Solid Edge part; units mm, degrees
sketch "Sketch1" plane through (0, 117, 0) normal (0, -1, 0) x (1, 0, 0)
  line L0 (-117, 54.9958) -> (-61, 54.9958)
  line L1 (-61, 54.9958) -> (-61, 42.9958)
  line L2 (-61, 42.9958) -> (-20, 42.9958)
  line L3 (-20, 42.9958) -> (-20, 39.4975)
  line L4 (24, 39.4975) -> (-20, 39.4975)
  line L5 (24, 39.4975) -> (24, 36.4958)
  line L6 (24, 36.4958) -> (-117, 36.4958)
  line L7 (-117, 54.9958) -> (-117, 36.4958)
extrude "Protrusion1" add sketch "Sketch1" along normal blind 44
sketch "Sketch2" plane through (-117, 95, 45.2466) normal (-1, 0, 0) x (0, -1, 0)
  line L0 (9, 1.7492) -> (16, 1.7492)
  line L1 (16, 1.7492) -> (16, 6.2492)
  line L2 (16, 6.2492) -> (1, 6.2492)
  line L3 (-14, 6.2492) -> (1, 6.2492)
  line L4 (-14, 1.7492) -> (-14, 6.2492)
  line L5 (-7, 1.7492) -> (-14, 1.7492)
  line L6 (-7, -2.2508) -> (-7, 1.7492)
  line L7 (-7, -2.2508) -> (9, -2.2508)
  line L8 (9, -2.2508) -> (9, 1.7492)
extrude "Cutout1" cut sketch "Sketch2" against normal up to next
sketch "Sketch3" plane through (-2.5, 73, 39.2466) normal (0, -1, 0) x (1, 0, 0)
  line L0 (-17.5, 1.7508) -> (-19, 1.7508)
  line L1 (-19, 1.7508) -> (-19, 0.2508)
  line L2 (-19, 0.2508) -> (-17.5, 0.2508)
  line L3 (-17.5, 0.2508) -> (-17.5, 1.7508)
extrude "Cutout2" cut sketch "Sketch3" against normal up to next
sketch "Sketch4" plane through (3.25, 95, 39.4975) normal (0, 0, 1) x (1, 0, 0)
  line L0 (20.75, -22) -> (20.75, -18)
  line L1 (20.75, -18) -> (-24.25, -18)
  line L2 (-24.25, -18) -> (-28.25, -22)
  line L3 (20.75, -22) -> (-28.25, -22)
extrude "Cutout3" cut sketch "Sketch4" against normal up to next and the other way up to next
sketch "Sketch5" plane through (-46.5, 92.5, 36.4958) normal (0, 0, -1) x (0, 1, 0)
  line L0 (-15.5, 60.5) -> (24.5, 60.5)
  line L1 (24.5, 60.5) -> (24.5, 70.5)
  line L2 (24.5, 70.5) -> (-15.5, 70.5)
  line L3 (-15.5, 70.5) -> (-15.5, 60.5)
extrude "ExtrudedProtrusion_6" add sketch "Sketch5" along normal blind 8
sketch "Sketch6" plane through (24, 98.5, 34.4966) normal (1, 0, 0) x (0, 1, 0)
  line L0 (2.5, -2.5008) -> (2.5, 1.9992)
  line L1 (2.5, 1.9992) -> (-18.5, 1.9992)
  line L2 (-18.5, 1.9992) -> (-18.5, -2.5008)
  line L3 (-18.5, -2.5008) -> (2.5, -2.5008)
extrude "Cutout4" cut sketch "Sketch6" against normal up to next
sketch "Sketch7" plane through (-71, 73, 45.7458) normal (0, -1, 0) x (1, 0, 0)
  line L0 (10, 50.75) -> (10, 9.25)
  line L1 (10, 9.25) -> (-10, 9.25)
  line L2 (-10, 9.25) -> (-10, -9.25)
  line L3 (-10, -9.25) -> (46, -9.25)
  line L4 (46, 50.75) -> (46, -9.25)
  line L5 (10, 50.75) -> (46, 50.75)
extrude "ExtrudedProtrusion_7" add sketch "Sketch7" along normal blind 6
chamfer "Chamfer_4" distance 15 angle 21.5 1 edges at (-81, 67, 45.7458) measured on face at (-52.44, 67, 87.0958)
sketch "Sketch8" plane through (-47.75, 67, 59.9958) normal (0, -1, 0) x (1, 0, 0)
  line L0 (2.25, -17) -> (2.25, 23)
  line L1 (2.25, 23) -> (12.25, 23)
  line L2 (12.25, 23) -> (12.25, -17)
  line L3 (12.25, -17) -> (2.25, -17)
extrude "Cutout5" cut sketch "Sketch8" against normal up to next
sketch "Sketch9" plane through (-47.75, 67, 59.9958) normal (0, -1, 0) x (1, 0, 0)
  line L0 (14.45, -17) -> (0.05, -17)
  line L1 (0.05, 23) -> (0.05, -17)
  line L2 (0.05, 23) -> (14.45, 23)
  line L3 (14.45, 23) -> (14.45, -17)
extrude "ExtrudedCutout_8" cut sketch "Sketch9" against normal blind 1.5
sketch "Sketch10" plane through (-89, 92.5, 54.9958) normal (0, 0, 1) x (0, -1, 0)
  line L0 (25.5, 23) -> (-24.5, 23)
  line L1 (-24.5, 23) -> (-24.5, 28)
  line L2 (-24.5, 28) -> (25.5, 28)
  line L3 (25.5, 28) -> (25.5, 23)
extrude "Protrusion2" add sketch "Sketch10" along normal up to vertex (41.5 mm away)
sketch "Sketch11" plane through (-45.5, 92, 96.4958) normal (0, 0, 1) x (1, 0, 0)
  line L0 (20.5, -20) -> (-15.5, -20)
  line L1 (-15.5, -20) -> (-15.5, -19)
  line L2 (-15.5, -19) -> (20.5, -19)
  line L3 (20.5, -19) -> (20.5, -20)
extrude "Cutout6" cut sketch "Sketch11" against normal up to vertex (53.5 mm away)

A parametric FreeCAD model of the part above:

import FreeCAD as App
import Part
import Sketcher

V = App.Vector
Q = App.Units.Quantity


def edges_at(feature, points):
    """Names of the edges that pass closest to the given points."""
    edges = feature.Shape.Edges
    near = lambda p: min(range(len(edges)), key=lambda i: edges[i].distToShape(Part.Vertex(*p))[0])
    return sorted({f"Edge{near(p) + 1}" for p in points})


def add_polygon(sketch, points):
    """Adds a closed chain of lines whose ends are joined by coincident constraints."""
    first, n = sketch.GeometryCount, len(points)
    for a, b in zip(points, points[1:] + points[:1]):
        sketch.addGeometry(Part.LineSegment(App.Vector(*a, 0), App.Vector(*b, 0)), False)
    for i in range(n):
        sketch.addConstraint(Sketcher.Constraint("Coincident", first + i, 2, first + (i + 1) % n, 1))

doc = App.newDocument("Part")
params = doc.addObject("Spreadsheet::Sheet", "Params")
for row, (alias, value) in enumerate([
    ("sketch1_width", "56 mm"),
    ("sketch1_width2", "141 mm"),
    ("sketch1_width3", "44 mm"),
    ("sketch1_height", "12 mm"),
    ("sketch1_height2", "18.5 mm"),
    ("pad1_length", "44 mm"),
    ("sketch2_width", "7 mm"),
    ("sketch2_width2", "30 mm"),
    ("sketch2_height", "4 mm"),
    ("sketch2_height2", "4.5 mm"),
    ("sketch3_width", "1.5 mm"),
    ("sketch4_width", "49 mm"),
    ("sketch4_width2", "45 mm"),
    ("sketch4_height", "4 mm"),
    ("sketch5_width", "10 mm"),
    ("sketch5_height", "40 mm"),
    ("pad2_length", "8 mm"),
    ("sketch6_width", "21 mm"),
    ("sketch6_height", "4.5 mm"),
    ("sketch7_width", "36 mm"),
    ("sketch7_width2", "20 mm"),
    ("sketch7_height", "60 mm"),
    ("sketch7_height2", "41.5 mm"),
    ("pad3_length", "6 mm"),
    ("chamfer_size", "15 mm"),
    ("sketch8_width", "10 mm"),
    ("sketch8_height", "40 mm"),
    ("sketch9_height", "40 mm"),
    ("sketch9_width", "14.4 mm"),
    ("pocket6_length", "1.5 mm"),
    ("sketch10_width", "5 mm"),
    ("sketch10_height", "50 mm"),
    ("pad4_length", "41.5 mm"),
    ("sketch11_width", "36 mm"),
    ("sketch11_height", "1 mm"),
    ("pocket7_length", "53.5 mm"),
], start=1):
    params.set(f"A{row}", alias)
    params.set(f"B{row}", "=" + value)
    params.setAlias(f"B{row}", alias)

body = doc.addObject("PartDesign::Body", "Body")

# Sketch on XZ plane
sketch1 = body.newObject("Sketcher::SketchObject", "Sketch")
sketch1.AttachmentSupport = (doc.getObject("XZ_Plane"), [""])
sketch1.MapMode = "FlatFace"
sketch1.AttachmentOffset = App.Placement(V(0, 0, -117), App.Rotation())
add_polygon(sketch1, [(-61, 54.9958), (-117, 54.9958), (-117, 36.4958), (24, 36.4958), (24, 39.4975), (-20, 39.4975), (-20, 42.9958), (-61, 42.9958)])  # lines 0-7
sketch1.addConstraint(Sketcher.Constraint("Horizontal", 0))
sketch1.addConstraint(Sketcher.Constraint("Vertical", 1))
sketch1.addConstraint(Sketcher.Constraint("Horizontal", 2))
sketch1.addConstraint(Sketcher.Constraint("Vertical", 3))
sketch1.addConstraint(Sketcher.Constraint("Horizontal", 4))
sketch1.addConstraint(Sketcher.Constraint("Vertical", 5))
sketch1.addConstraint(Sketcher.Constraint("Horizontal", 6))
sketch1.addConstraint(Sketcher.Constraint("Vertical", 7))
sketch1.addConstraint(Sketcher.Constraint("DistanceX", 0, 2, 0, 1, Q("56 mm")))
sketch1.addConstraint(Sketcher.Constraint("DistanceX", 2, 1, 2, 2, Q("141 mm")))
sketch1.addConstraint(Sketcher.Constraint("DistanceX", 4, 2, 4, 1, Q("44 mm")))
sketch1.addConstraint(Sketcher.Constraint("DistanceY", 7, 1, 7, 2, Q("12 mm")))
sketch1.addConstraint(Sketcher.Constraint("DistanceY", 1, 2, 1, 1, Q("18.5 mm")))
sketch1.addConstraint(Sketcher.Constraint("DistanceX", 0, 2, -1, 1, Q("117 mm")))
sketch1.addConstraint(Sketcher.Constraint("DistanceY", 3, 1, 3, 2, Q("3.0017 mm")))
sketch1.addConstraint(Sketcher.Constraint("DistanceY", -1, 1, 0, 2, Q("54.9958 mm")))
sketch1.setExpression("Constraints[16]", "Params.sketch1_width")
sketch1.setExpression("Constraints[17]", "Params.sketch1_width2")
sketch1.setExpression("Constraints[18]", "Params.sketch1_width3")
sketch1.setExpression("Constraints[19]", "Params.sketch1_height")
sketch1.setExpression("Constraints[20]", "Params.sketch1_height2")
pad1 = body.newObject("PartDesign::Pad", "Pad")
pad1.Profile = sketch1
pad1.setExpression("Length", "Params.pad1_length")

# Sketch on YZ plane
sketch2 = body.newObject("Sketcher::SketchObject", "Sketch001")
sketch2.AttachmentSupport = (doc.getObject("YZ_Plane"), [""])
sketch2.MapMode = "FlatFace"
sketch2.AttachmentOffset = App.Placement(V(0, 0, -117), App.Rotation())
add_polygon(sketch2, [(86, 42.9958), (86, 46.9958), (79, 46.9958), (79, 51.4958), (109, 51.4958), (109, 46.9958), (102, 46.9958), (102, 42.9958)])  # lines 0-7
sketch2.addConstraint(Sketcher.Constraint("Vertical", 0))
sketch2.addConstraint(Sketcher.Constraint("Horizontal", 1))
sketch2.addConstraint(Sketcher.Constraint("Vertical", 2))
sketch2.addConstraint(Sketcher.Constraint("Horizontal", 3))
sketch2.addConstraint(Sketcher.Constraint("Vertical", 4))
sketch2.addConstraint(Sketcher.Constraint("Horizontal", 5))
sketch2.addConstraint(Sketcher.Constraint("Vertical", 6))
sketch2.addConstraint(Sketcher.Constraint("Horizontal", 7))
sketch2.addConstraint(Sketcher.Constraint("Horizontal", 1, 2, 4, 2))
sketch2.addConstraint(Sketcher.Constraint("Equal", 1, 5))
sketch2.addConstraint(Sketcher.Constraint("DistanceX", 1, 2, 1, 1, Q("7 mm")))
sketch2.addConstraint(Sketcher.Constraint("DistanceX", 3, 1, 3, 2, Q("30 mm")))
sketch2.addConstraint(Sketcher.Constraint("DistanceY", 0, 1, 0, 2, Q("4 mm")))
sketch2.addConstraint(Sketcher.Constraint("DistanceY", 2, 1, 2, 2, Q("4.5 mm")))
sketch2.addConstraint(Sketcher.Constraint("DistanceX", -1, 1, 0, 2, Q("86 mm")))
sketch2.addConstraint(Sketcher.Constraint("DistanceY", -1, 1, 0, 2, Q("46.9958 mm")))
sketch2.setExpression("Constraints[18]", "Params.sketch2_width")
sketch2.setExpression("Constraints[19]", "Params.sketch2_width2")
sketch2.setExpression("Constraints[20]", "Params.sketch2_height")
sketch2.setExpression("Constraints[21]", "Params.sketch2_height2")
pocket1 = body.newObject("PartDesign::Pocket", "Pocket")
pocket1.Profile = sketch2
pocket1.Type = "UpToFirst"
pocket1.Reversed = True

# Sketch on XZ plane
sketch3 = body.newObject("Sketcher::SketchObject", "Sketch002")
sketch3.AttachmentSupport = (doc.getObject("XZ_Plane"), [""])
sketch3.MapMode = "FlatFace"
sketch3.AttachmentOffset = App.Placement(V(0, 0, -73), App.Rotation())
add_polygon(sketch3, [(-20, 39.4974), (-20, 40.9974), (-21.5, 40.9974), (-21.5, 39.4974)])  # lines 0-3
sketch3.addConstraint(Sketcher.Constraint("Vertical", 0))
sketch3.addConstraint(Sketcher.Constraint("Horizontal", 1))
sketch3.addConstraint(Sketcher.Constraint("Vertical", 2))
sketch3.addConstraint(Sketcher.Constraint("Horizontal", 3))
sketch3.addConstraint(Sketcher.Constraint("Equal", 3, 0))
sketch3.addConstraint(Sketcher.Constraint("DistanceX", 1, 2, 1, 1, Q("1.5 mm")))
sketch3.addConstraint(Sketcher.Constraint("DistanceX", 0, 2, -1, 1, Q("20 mm")))
sketch3.addConstraint(Sketcher.Constraint("DistanceY", -1, 1, 0, 2, Q("40.9974 mm")))
sketch3.setExpression("Constraints[9]", "Params.sketch3_width")
pocket2 = body.newObject("PartDesign::Pocket", "Pocket001")
pocket2.Profile = sketch3
pocket2.Type = "UpToFirst"

# Sketch on XY plane
sketch4 = body.newObject("Sketcher::SketchObject", "Sketch003")
sketch4.AttachmentSupport = (doc.getObject("XY_Plane"), [""])
sketch4.MapMode = "FlatFace"
sketch4.AttachmentOffset = App.Placement(V(0, 0, 39.4975), App.Rotation())
add_polygon(sketch4, [(-25, 73), (24, 73), (24, 77), (-21, 77)])  # lines 0-3
sketch4.addConstraint(Sketcher.Constraint("Horizontal", 0))
sketch4.addConstraint(Sketcher.Constraint("Vertical", 1))
sketch4.addConstraint(Sketcher.Constraint("Horizontal", 2))
sketch4.addConstraint(Sketcher.Constraint("DistanceX", 0, 1, 0, 2, Q("49 mm")))
sketch4.addConstraint(Sketcher.Constraint("DistanceX", 2, 2, 2, 1, Q("45 mm")))
sketch4.addConstraint(Sketcher.Constraint("DistanceY", 1, 1, 1, 2, Q("4 mm")))
sketch4.addConstraint(Sketcher.Constraint("DistanceX", -1, 1, 0, 2, Q("24 mm")))
sketch4.addConstraint(Sketcher.Constraint("DistanceY", -1, 1, 0, 2, Q("73 mm")))
sketch4.setExpression("Constraints[7]", "Params.sketch4_width")
sketch4.setExpression("Constraints[8]", "Params.sketch4_width2")
sketch4.setExpression("Constraints[9]", "Params.sketch4_height")
pocket3 = body.newObject("PartDesign::Pocket", "Pocket002")
pocket3.Profile = sketch4
pocket3.Type = "ThroughAll"
pocket3.Midplane = True

# Sketch on XY plane
sketch5 = body.newObject("Sketcher::SketchObject", "Sketch004")
sketch5.AttachmentSupport = (doc.getObject("XY_Plane"), [""])
sketch5.MapMode = "FlatFace"
sketch5.AttachmentOffset = App.Placement(V(0, 0, 36.4958), App.Rotation())
add_polygon(sketch5, [(24, 77), (14, 77), (14, 117), (24, 117)])  # lines 0-3
sketch5.addConstraint(Sketcher.Constraint("Horizontal", 0))
sketch5.addConstraint(Sketcher.Constraint("Vertical", 1))
sketch5.addConstraint(Sketcher.Constraint("Horizontal", 2))
sketch5.addConstraint(Sketcher.Constraint("Vertical", 3))
sketch5.addConstraint(Sketcher.Constraint("DistanceX", 0, 2, 0, 1, Q("10 mm")))
sketch5.addConstraint(Sketcher.Constraint("DistanceY", 1, 1, 1, 2, Q("40 mm")))
sketch5.addConstraint(Sketcher.Constraint("DistanceX", -1, 1, 0, 2, Q("14 mm")))
sketch5.addConstraint(Sketcher.Constraint("DistanceY", -1, 1, 0, 2, Q("77 mm")))
sketch5.setExpression("Constraints[8]", "Params.sketch5_width")
sketch5.setExpression("Constraints[9]", "Params.sketch5_height")
pad2 = body.newObject("PartDesign::Pad", "Pad001")
pad2.Profile = sketch5
pad2.setExpression("Length", "Params.pad2_length")
pad2.Reversed = True

# Sketch on YZ plane
sketch6 = body.newObject("Sketcher::SketchObject", "Sketch005")
sketch6.AttachmentSupport = (doc.getObject("YZ_Plane"), [""])
sketch6.MapMode = "FlatFace"
sketch6.AttachmentOffset = App.Placement(V(0, 0, 24), App.Rotation())
add_polygon(sketch6, [(80, 31.9958), (101, 31.9958), (101, 36.4958), (80, 36.4958)])  # lines 0-3
sketch6.addConstraint(Sketcher.Constraint("Horizontal", 0))
sketch6.addConstraint(Sketcher.Constraint("Vertical", 1))
sketch6.addConstraint(Sketcher.Constraint("Horizontal", 2))
sketch6.addConstraint(Sketcher.Constraint("Vertical", 3))
sketch6.addConstraint(Sketcher.Constraint("DistanceX", 0, 1, 0, 2, Q("21 mm")))
sketch6.addConstraint(Sketcher.Constraint("DistanceY", 1, 1, 1, 2, Q("4.5 mm")))
sketch6.addConstraint(Sketcher.Constraint("DistanceX", -1, 1, 0, 2, Q("101 mm")))
sketch6.addConstraint(Sketcher.Constraint("DistanceY", -1, 1, 0, 2, Q("31.9958 mm")))
sketch6.setExpression("Constraints[8]", "Params.sketch6_width")
sketch6.setExpression("Constraints[9]", "Params.sketch6_height")
pocket4 = body.newObject("PartDesign::Pocket", "Pocket003")
pocket4.Profile = sketch6
pocket4.Type = "UpToFirst"

# Sketch on XZ plane
sketch7 = body.newObject("Sketcher::SketchObject", "Sketch006")
sketch7.AttachmentSupport = (doc.getObject("XZ_Plane"), [""])
sketch7.MapMode = "FlatFace"
sketch7.AttachmentOffset = App.Placement(V(0, 0, -73), App.Rotation())
add_polygon(sketch7, [(-25, 96.4958), (-61, 96.4958), (-61, 54.9958), (-81, 54.9958), (-81, 36.4958), (-25, 36.4958)])  # lines 0-5
sketch7.addConstraint(Sketcher.Constraint("Horizontal", 0))
sketch7.addConstraint(Sketcher.Constraint("Vertical", 1))
sketch7.addConstraint(Sketcher.Constraint("Horizontal", 2))
sketch7.addConstraint(Sketcher.Constraint("Vertical", 3))
sketch7.addConstraint(Sketcher.Constraint("Horizontal", 4))
sketch7.addConstraint(Sketcher.Constraint("Vertical", 5))
sketch7.addConstraint(Sketcher.Constraint("DistanceX", 0, 2, 0, 1, Q("36 mm")))
sketch7.addConstraint(Sketcher.Constraint("DistanceX", 2, 2, 2, 1, Q("20 mm")))
sketch7.addConstraint(Sketcher.Constraint("DistanceY", 5, 1, 5, 2, Q("60 mm")))
sketch7.addConstraint(Sketcher.Constraint("DistanceY", 1, 2, 1, 1, Q("41.5 mm")))
sketch7.addConstraint(Sketcher.Constraint("DistanceX", 0, 2, -1, 1, Q("61 mm")))
sketch7.addConstraint(Sketcher.Constraint("DistanceY", -1, 1, 0, 2, Q("96.4958 mm")))
sketch7.setExpression("Constraints[12]", "Params.sketch7_width")
sketch7.setExpression("Constraints[13]", "Params.sketch7_width2")
sketch7.setExpression("Constraints[14]", "Params.sketch7_height")
sketch7.setExpression("Constraints[15]", "Params.sketch7_height2")
pad3 = body.newObject("PartDesign::Pad", "Pad002")
pad3.Profile = sketch7
pad3.setExpression("Length", "Params.pad3_length")
doc.recompute()

chamfer = body.newObject("PartDesign::Chamfer", "Chamfer")
chamfer.Base = (pad3, edges_at(pad3, [(-81, 67, 45.746)]))
chamfer.ChamferType = "Distance and Angle"
chamfer.setExpression("Size", "Params.chamfer_size")
chamfer.Angle = 21.5
chamfer.FlipDirection = True

# Sketch on XZ plane
sketch8 = body.newObject("Sketcher::SketchObject", "Sketch007")
sketch8.AttachmentSupport = (doc.getObject("XZ_Plane"), [""])
sketch8.MapMode = "FlatFace"
sketch8.AttachmentOffset = App.Placement(V(0, 0, -67), App.Rotation())
add_polygon(sketch8, [(-45.5, 82.9958), (-45.5, 42.9958), (-35.5, 42.9958), (-35.5, 82.9958)])  # lines 0-3
sketch8.addConstraint(Sketcher.Constraint("Vertical", 0))
sketch8.addConstraint(Sketcher.Constraint("Horizontal", 1))
sketch8.addConstraint(Sketcher.Constraint("Vertical", 2))
sketch8.addConstraint(Sketcher.Constraint("Horizontal", 3))
sketch8.addConstraint(Sketcher.Constraint("DistanceX", 1, 1, 1, 2, Q("10 mm")))
sketch8.addConstraint(Sketcher.Constraint("DistanceY", 0, 2, 0, 1, Q("40 mm")))
sketch8.addConstraint(Sketcher.Constraint("DistanceX", 0, 2, -1, 1, Q("45.5 mm")))
sketch8.addConstraint(Sketcher.Constraint("DistanceY", -1, 1, 0, 2, Q("42.9958 mm")))
sketch8.setExpression("Constraints[8]", "Params.sketch8_width")
sketch8.setExpression("Constraints[9]", "Params.sketch8_height")
pocket5 = body.newObject("PartDesign::Pocket", "Pocket004")
pocket5.Profile = sketch8
pocket5.Type = "UpToFirst"

# Sketch on XZ plane
sketch9 = body.newObject("Sketcher::SketchObject", "Sketch008")
sketch9.AttachmentSupport = (doc.getObject("XZ_Plane"), [""])
sketch9.MapMode = "FlatFace"
sketch9.AttachmentOffset = App.Placement(V(0, 0, -67), App.Rotation())
add_polygon(sketch9, [(-47.7, 42.9958), (-33.3, 42.9958), (-33.3, 82.9958), (-47.7, 82.9958)])  # lines 0-3
sketch9.addConstraint(Sketcher.Constraint("Horizontal", 0))
sketch9.addConstraint(Sketcher.Constraint("Vertical", 1))
sketch9.addConstraint(Sketcher.Constraint("Horizontal", 2))
sketch9.addConstraint(Sketcher.Constraint("Vertical", 3))
sketch9.addConstraint(Sketcher.Constraint("DistanceY", 1, 1, 1, 2, Q("40 mm")))
sketch9.addConstraint(Sketcher.Constraint("DistanceX", 0, 1, 0, 2, Q("14.4 mm")))
sketch9.addConstraint(Sketcher.Constraint("DistanceX", 0, 2, -1, 1, Q("33.3 mm")))
sketch9.addConstraint(Sketcher.Constraint("DistanceY", -1, 1, 0, 2, Q("42.9958 mm")))
sketch9.setExpression("Constraints[8]", "Params.sketch9_height")
sketch9.setExpression("Constraints[9]", "Params.sketch9_width")
pocket6 = body.newObject("PartDesign::Pocket", "Pocket005")
pocket6.Profile = sketch9
pocket6.setExpression("Length", "Params.pocket6_length")

# Sketch on XY plane
sketch10 = body.newObject("Sketcher::SketchObject", "Sketch009")
sketch10.AttachmentSupport = (doc.getObject("XY_Plane"), [""])
sketch10.MapMode = "FlatFace"
sketch10.AttachmentOffset = App.Placement(V(0, 0, 54.9958), App.Rotation())
add_polygon(sketch10, [(-66, 117), (-66, 67), (-61, 67), (-61, 117)])  # lines 0-3
sketch10.addConstraint(Sketcher.Constraint("Vertical", 0))
sketch10.addConstraint(Sketcher.Constraint("Horizontal", 1))
sketch10.addConstraint(Sketcher.Constraint("Vertical", 2))
sketch10.addConstraint(Sketcher.Constraint("Horizontal", 3))
sketch10.addConstraint(Sketcher.Constraint("DistanceX", 1, 1, 1, 2, Q("5 mm")))
sketch10.addConstraint(Sketcher.Constraint("DistanceY", 0, 2, 0, 1, Q("50 mm")))
sketch10.addConstraint(Sketcher.Constraint("DistanceX", 0, 2, -1, 1, Q("66 mm")))
sketch10.addConstraint(Sketcher.Constraint("DistanceY", -1, 1, 0, 2, Q("67 mm")))
sketch10.setExpression("Constraints[8]", "Params.sketch10_width")
sketch10.setExpression("Constraints[9]", "Params.sketch10_height")
pad4 = body.newObject("PartDesign::Pad", "Pad003")
pad4.Profile = sketch10
pad4.setExpression("Length", "Params.pad4_length")

# Sketch on XY plane
sketch11 = body.newObject("Sketcher::SketchObject", "Sketch010")
sketch11.AttachmentSupport = (doc.getObject("XY_Plane"), [""])
sketch11.MapMode = "FlatFace"
sketch11.AttachmentOffset = App.Placement(V(0, 0, 96.4958), App.Rotation())
add_polygon(sketch11, [(-61, 72), (-25, 72), (-25, 73), (-61, 73)])  # lines 0-3
sketch11.addConstraint(Sketcher.Constraint("Horizontal", 0))
sketch11.addConstraint(Sketcher.Constraint("Vertical", 1))
sketch11.addConstraint(Sketcher.Constraint("Horizontal", 2))
sketch11.addConstraint(Sketcher.Constraint("Vertical", 3))
sketch11.addConstraint(Sketcher.Constraint("DistanceX", 0, 1, 0, 2, Q("36 mm")))
sketch11.addConstraint(Sketcher.Constraint("DistanceY", 1, 1, 1, 2, Q("1 mm")))
sketch11.addConstraint(Sketcher.Constraint("DistanceX", 0, 2, -1, 1, Q("25 mm")))
sketch11.addConstraint(Sketcher.Constraint("DistanceY", -1, 1, 0, 2, Q("72 mm")))
sketch11.setExpression("Constraints[8]", "Params.sketch11_width")
sketch11.setExpression("Constraints[9]", "Params.sketch11_height")
pocket7 = body.newObject("PartDesign::Pocket", "Pocket006")
pocket7.Profile = sketch11
pocket7.setExpression("Length", "Params.pocket7_length")

doc.recompute()
